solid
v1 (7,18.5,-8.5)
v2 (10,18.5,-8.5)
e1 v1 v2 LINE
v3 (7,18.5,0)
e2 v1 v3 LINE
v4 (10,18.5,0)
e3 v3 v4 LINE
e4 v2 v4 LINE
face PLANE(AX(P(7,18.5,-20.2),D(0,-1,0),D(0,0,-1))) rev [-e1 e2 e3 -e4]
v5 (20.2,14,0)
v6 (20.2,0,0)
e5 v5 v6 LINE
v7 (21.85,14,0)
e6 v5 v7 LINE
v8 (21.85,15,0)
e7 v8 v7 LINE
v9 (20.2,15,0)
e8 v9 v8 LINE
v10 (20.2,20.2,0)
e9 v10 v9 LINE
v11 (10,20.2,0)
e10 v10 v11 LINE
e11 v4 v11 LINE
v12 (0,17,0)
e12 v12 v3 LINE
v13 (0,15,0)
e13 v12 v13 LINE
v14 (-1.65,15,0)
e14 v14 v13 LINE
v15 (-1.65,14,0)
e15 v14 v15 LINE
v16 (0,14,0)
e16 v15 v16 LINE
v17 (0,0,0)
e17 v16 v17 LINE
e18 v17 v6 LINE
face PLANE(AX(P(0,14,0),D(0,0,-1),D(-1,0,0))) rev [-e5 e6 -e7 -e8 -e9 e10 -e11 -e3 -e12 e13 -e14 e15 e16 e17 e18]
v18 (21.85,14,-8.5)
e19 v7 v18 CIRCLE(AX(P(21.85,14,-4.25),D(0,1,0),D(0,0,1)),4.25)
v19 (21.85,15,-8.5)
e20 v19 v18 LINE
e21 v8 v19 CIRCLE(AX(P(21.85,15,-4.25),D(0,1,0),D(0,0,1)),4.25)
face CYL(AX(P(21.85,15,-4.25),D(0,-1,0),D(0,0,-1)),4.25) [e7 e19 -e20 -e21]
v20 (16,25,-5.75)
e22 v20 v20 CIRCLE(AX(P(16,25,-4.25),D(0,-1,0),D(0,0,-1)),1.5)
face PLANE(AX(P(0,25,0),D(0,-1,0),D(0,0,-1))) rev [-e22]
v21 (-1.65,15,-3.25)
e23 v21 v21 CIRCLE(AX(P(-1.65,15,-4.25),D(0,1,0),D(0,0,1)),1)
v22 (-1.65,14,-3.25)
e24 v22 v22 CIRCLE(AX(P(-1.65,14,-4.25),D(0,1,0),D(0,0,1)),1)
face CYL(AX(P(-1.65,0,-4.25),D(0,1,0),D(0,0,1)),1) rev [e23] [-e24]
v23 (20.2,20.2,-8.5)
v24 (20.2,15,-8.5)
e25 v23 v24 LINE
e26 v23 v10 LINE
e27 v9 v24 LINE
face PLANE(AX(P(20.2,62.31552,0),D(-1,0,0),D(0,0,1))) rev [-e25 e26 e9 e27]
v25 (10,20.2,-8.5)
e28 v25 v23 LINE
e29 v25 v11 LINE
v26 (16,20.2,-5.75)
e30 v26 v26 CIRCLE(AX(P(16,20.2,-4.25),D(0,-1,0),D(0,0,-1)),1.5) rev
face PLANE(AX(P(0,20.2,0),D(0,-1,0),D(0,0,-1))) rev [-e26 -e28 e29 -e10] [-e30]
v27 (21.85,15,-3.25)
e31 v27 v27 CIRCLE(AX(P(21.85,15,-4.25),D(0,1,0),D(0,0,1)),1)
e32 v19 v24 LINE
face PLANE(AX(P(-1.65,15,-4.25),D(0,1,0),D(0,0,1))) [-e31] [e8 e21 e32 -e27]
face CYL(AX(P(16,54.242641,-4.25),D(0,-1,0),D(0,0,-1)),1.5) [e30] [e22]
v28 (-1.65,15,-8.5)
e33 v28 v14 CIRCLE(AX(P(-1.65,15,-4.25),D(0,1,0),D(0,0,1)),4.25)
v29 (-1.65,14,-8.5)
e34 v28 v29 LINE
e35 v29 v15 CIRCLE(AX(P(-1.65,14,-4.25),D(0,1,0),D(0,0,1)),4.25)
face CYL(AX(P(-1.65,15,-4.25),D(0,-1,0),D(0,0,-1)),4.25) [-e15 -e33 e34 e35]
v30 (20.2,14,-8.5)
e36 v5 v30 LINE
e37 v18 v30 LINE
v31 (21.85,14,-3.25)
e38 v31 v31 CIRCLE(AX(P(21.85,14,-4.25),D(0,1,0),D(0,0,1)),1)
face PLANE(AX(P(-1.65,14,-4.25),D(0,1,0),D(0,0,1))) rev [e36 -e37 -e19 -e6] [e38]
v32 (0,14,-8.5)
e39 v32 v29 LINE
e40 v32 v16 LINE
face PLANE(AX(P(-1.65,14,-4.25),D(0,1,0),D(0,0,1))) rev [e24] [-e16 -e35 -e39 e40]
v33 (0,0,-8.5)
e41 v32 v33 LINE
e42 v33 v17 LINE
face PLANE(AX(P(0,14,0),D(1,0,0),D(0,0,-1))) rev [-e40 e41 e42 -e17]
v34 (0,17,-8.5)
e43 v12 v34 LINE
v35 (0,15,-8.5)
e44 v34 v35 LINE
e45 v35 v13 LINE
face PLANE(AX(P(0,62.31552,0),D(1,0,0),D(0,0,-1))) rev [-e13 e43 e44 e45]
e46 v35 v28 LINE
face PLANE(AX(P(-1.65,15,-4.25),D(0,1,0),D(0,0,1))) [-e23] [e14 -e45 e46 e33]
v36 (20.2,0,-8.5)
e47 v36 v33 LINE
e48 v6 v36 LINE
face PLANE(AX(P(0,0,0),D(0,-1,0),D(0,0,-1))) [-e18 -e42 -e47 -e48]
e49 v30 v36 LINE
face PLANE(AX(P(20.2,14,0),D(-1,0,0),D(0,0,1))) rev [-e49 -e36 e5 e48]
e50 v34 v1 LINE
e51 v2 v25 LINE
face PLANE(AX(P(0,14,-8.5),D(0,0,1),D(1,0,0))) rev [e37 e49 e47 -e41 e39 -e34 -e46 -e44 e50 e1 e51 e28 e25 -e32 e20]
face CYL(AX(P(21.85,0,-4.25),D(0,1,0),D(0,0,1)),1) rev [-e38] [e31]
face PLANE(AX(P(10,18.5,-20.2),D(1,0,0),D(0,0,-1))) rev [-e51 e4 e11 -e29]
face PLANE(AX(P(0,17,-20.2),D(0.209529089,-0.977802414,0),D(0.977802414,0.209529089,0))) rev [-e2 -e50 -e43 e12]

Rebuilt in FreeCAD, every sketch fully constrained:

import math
import FreeCAD as App
import Part
import Sketcher

doc = App.newDocument("Part")
body = doc.addObject("PartDesign::Body", "Body")

# Sketch on XZ plane
sketch1 = doc.addObject("Sketcher::SketchObject", "Sketch")
body.addObject(sketch1)
sketch1.AttachmentSupport = (doc.XZ_Plane, [""])
sketch1.MapMode = "FlatFace"
sketch1.addGeometry([
    Part.LineSegment(App.Vector(0, -8.5, 0), App.Vector(0, 0, 0)),
    Part.LineSegment(App.Vector(0, 0, 0), App.Vector(20.2, 0, 0)),
    Part.LineSegment(App.Vector(20.2, 0, 0), App.Vector(20.2, -8.5, 0)),
    Part.LineSegment(App.Vector(20.2, -8.5, 0), App.Vector(0, -8.5, 0)),
], False)
sketch1.addConstraint([
    Sketcher.Constraint("Coincident", 0, 2, 1, 1),
    Sketcher.Constraint("Coincident", 1, 2, 2, 1),
    Sketcher.Constraint("Coincident", 2, 2, 3, 1),
    Sketcher.Constraint("Coincident", 3, 2, 0, 1),
    Sketcher.Constraint("Vertical", 0),
    Sketcher.Constraint("Horizontal", 1),
    Sketcher.Constraint("Vertical", 2),
    Sketcher.Constraint("Horizontal", 3),
    Sketcher.Constraint("Coincident", 0, 2, -1, 1),
    Sketcher.Constraint("DistanceX", 1, 1, 1, 2, 20.2),
    Sketcher.Constraint("DistanceY", 0, 1, 0, 2, 8.5),
])
pad1 = doc.addObject("PartDesign::Pad", "Pad")
body.addObject(pad1)
pad1.Profile = sketch1
pad1.Length = 14
pad1.Reversed = True

# Sketch on XZ plane
sketch2 = doc.addObject("Sketcher::SketchObject", "Sketch001")
body.addObject(sketch2)
sketch2.AttachmentSupport = (doc.XZ_Plane, [""])
sketch2.MapMode = "FlatFace"
sketch2.AttachmentOffset = App.Placement(App.Vector(0, 0, -14), App.Rotation())
sketch2.addGeometry([
    Part.LineSegment(App.Vector(21.85, -8.5, 0), App.Vector(-1.65, -8.5, 0)),
    Part.ArcOfCircle(Part.Circle(App.Vector(-1.65, -4.25, 0), App.Vector(0, 0, 1), 4.25), math.radians(90), math.radians(270)),
    Part.LineSegment(App.Vector(-1.65, 0, 0), App.Vector(21.85, 0, 0)),
    Part.ArcOfCircle(Part.Circle(App.Vector(21.85, -4.25, 0), App.Vector(0, 0, 1), 4.25), math.radians(-90), math.radians(90)),
], False)
sketch2.addConstraint([
    Sketcher.Constraint("Tangent", 0, 2, 1, 2),
    Sketcher.Constraint("Tangent", 1, 1, 2, 1),
    Sketcher.Constraint("Tangent", 2, 2, 3, 2),
    Sketcher.Constraint("Tangent", 3, 1, 0, 1),
    Sketcher.Constraint("Horizontal", 0),
    Sketcher.Constraint("Horizontal", 2),
    Sketcher.Constraint("PointOnObject", 1, 1, -1),
    Sketcher.Constraint("Radius", 1, 4.25),
    Sketcher.Constraint("DistanceX", 0, 2, 0, 1, 23.5),
    Sketcher.Constraint("DistanceX", 1, 3, -1, 1, 1.65),
])
pad2 = doc.addObject("PartDesign::Pad", "Pad001")
body.addObject(pad2)
pad2.Profile = sketch2
pad2.Length = 1
pad2.Reversed = True

# Sketch on XZ plane
sketch3 = doc.addObject("Sketcher::SketchObject", "Sketch002")
body.addObject(sketch3)
sketch3.AttachmentSupport = (doc.XZ_Plane, [""])
sketch3.MapMode = "FlatFace"
sketch3.AttachmentOffset = App.Placement(App.Vector(0, 0, -15), App.Rotation())
sketch3.addGeometry([
    Part.LineSegment(App.Vector(0, -8.5, 0), App.Vector(0, 0, 0)),
    Part.LineSegment(App.Vector(0, 0, 0), App.Vector(20.2, 0, 0)),
    Part.LineSegment(App.Vector(20.2, 0, 0), App.Vector(20.2, -8.5, 0)),
    Part.LineSegment(App.Vector(20.2, -8.5, 0), App.Vector(0, -8.5, 0)),
], False)
sketch3.addConstraint([
    Sketcher.Constraint("Coincident", 0, 2, 1, 1),
    Sketcher.Constraint("Coincident", 1, 2, 2, 1),
    Sketcher.Constraint("Coincident", 2, 2, 3, 1),
    Sketcher.Constraint("Coincident", 3, 2, 0, 1),
    Sketcher.Constraint("Vertical", 0),
    Sketcher.Constraint("Horizontal", 1),
    Sketcher.Constraint("Vertical", 2),
    Sketcher.Constraint("Horizontal", 3),
    Sketcher.Constraint("Coincident", 0, 2, -1, 1),
    Sketcher.Constraint("DistanceX", 1, 1, 1, 2, 20.2),
    Sketcher.Constraint("DistanceY", 0, 1, 0, 2, 8.5),
])
pad3 = doc.addObject("PartDesign::Pad", "Pad002")
body.addObject(pad3)
pad3.Profile = sketch3
pad3.Length = 5.2
pad3.Reversed = True

# Sketch on XY plane
sketch4 = doc.addObject("Sketcher::SketchObject", "Sketch003")
body.addObject(sketch4)
sketch4.AttachmentSupport = (doc.XY_Plane, [""])
sketch4.MapMode = "FlatFace"
sketch4.addGeometry([
    Part.LineSegment(App.Vector(0, 17, 0), App.Vector(7, 18.5, 0)),  # 0
    Part.LineSegment(App.Vector(7, 18.5, 0), App.Vector(10, 18.5, 0)),  # 1
    Part.LineSegment(App.Vector(10, 18.5, 0), App.Vector(10, 20.2, 0)),  # 2
    Part.LineSegment(App.Vector(10, 20.2, 0), App.Vector(20.2, 20.2, 0)),  # 3
    Part.LineSegment(App.Vector(20.2, 20.2, 0), App.Vector(20.2, 17.6, 0)),  # 4
    Part.LineSegment(App.Vector(20.2, 17.6, 0), App.Vector(23.419391, 17.6, 0)),  # 5
    Part.LineSegment(App.Vector(23.419391, 17.6, 0), App.Vector(23.419391, 23.763763, 0)),  # 6
    Part.LineSegment(App.Vector(23.419391, 23.763763, 0), App.Vector(-0.815559, 23.763763, 0)),  # 7
    Part.LineSegment(App.Vector(-0.815559, 23.763763, 0), App.Vector(0, 17, 0)),  # 8
], False)
sketch4.addConstraint([
    Sketcher.Constraint("Coincident", 0, 2, 1, 1),
    Sketcher.Constraint("Coincident", 1, 2, 2, 1),
    Sketcher.Constraint("Coincident", 2, 2, 3, 1),
    Sketcher.Constraint("Coincident", 3, 2, 4, 1),
    Sketcher.Constraint("Coincident", 4, 2, 5, 1),
    Sketcher.Constraint("Coincident", 5, 2, 6, 1),
    Sketcher.Constraint("Coincident", 6, 2, 7, 1),
    Sketcher.Constraint("Coincident", 7, 2, 8, 1),
    Sketcher.Constraint("Coincident", 8, 2, 0, 1),
    Sketcher.Constraint("Horizontal", 1),
    Sketcher.Constraint("Vertical", 2),
    Sketcher.Constraint("Horizontal", 3),
    Sketcher.Constraint("Vertical", 4),
    Sketcher.Constraint("Horizontal", 5),
    Sketcher.Constraint("Vertical", 6),
    Sketcher.Constraint("Horizontal", 7),
    Sketcher.Constraint("PointOnObject", 8, 2, -2),
    Sketcher.Constraint("DistanceX", 1, 1, 1, 2, 3.0),
    Sketcher.Constraint("DistanceX", 3, 1, 3, 2, 10.2),
    Sketcher.Constraint("DistanceY", 2, 1, 2, 2, 1.7),
    Sketcher.Constraint("DistanceY", 4, 2, 4, 1, 2.6),
    Sketcher.Constraint("DistanceX", -1, 1, 0, 2, 7.0),
    Sketcher.Constraint("DistanceY", -1, 1, 8, 2, 17.0),
    Sketcher.Constraint("DistanceY", -1, 1, 0, 2, 18.5),
    Sketcher.Constraint("DistanceX", 5, 1, 5, 2, 3.219391),
    Sketcher.Constraint("DistanceX", 7, 2, 7, 1, 24.23495),
    Sketcher.Constraint("DistanceY", 6, 1, 6, 2, 6.163763),
])
pocket1 = doc.addObject("PartDesign::Pocket", "Pocket")
body.addObject(pocket1)
pocket1.Profile = sketch4
pocket1.Length = 20.2

# Sketch on XZ plane
sketch5 = doc.addObject("Sketcher::SketchObject", "Sketch004")
body.addObject(sketch5)
sketch5.AttachmentSupport = (doc.XZ_Plane, [""])
sketch5.MapMode = "FlatFace"
sketch5.AttachmentOffset = App.Placement(App.Vector(0, 0, -15), App.Rotation())
sketch5.addGeometry([
    Part.Circle(App.Vector(-1.65, -4.25, 0), App.Vector(0, 0, 1), 1),
    Part.Circle(App.Vector(21.85, -4.25, 0), App.Vector(0, 0, 1), 1),
], False)
sketch5.addConstraint([
    Sketcher.Constraint("Equal", 0, 1),
    Sketcher.Constraint("Horizontal", 0, 3, 1, 3),
    Sketcher.Constraint("Diameter", 0, 2.0),
    Sketcher.Constraint("DistanceX", 0, 3, 1, 3, 23.5),
    Sketcher.Constraint("DistanceX", 0, 3, -1, 1, 1.65),
    Sketcher.Constraint("DistanceY", 0, 3, -1, 1, 4.25),
])
pocket2 = doc.addObject("PartDesign::Pocket", "Pocket001")
body.addObject(pocket2)
pocket2.Profile = sketch5
pocket2.Type = "ThroughAll"
pocket2.Reversed = True

# Sketch on XZ plane
sketch6 = doc.addObject("Sketcher::SketchObject", "Sketch005")
body.addObject(sketch6)
sketch6.AttachmentSupport = (doc.XZ_Plane, [""])
sketch6.MapMode = "FlatFace"
sketch6.AttachmentOffset = App.Placement(App.Vector(0, 0, -20.2), App.Rotation())
sketch6.addGeometry(Part.Circle(App.Vector(16, -4.25, 0), App.Vector(0, 0, 1), 1.5), False)
sketch6.addConstraint([
    Sketcher.Constraint("Diameter", 0, 3.0),
    Sketcher.Constraint("DistanceX", -1, 1, 0, 3, 16.0),
    Sketcher.Constraint("DistanceY", 0, 3, -1, 1, 4.25),
])
pad4 = doc.addObject("PartDesign::Pad", "Pad003")
body.addObject(pad4)
pad4.Profile = sketch6
pad4.Length = 4.8
pad4.Reversed = True

doc.recompute()
